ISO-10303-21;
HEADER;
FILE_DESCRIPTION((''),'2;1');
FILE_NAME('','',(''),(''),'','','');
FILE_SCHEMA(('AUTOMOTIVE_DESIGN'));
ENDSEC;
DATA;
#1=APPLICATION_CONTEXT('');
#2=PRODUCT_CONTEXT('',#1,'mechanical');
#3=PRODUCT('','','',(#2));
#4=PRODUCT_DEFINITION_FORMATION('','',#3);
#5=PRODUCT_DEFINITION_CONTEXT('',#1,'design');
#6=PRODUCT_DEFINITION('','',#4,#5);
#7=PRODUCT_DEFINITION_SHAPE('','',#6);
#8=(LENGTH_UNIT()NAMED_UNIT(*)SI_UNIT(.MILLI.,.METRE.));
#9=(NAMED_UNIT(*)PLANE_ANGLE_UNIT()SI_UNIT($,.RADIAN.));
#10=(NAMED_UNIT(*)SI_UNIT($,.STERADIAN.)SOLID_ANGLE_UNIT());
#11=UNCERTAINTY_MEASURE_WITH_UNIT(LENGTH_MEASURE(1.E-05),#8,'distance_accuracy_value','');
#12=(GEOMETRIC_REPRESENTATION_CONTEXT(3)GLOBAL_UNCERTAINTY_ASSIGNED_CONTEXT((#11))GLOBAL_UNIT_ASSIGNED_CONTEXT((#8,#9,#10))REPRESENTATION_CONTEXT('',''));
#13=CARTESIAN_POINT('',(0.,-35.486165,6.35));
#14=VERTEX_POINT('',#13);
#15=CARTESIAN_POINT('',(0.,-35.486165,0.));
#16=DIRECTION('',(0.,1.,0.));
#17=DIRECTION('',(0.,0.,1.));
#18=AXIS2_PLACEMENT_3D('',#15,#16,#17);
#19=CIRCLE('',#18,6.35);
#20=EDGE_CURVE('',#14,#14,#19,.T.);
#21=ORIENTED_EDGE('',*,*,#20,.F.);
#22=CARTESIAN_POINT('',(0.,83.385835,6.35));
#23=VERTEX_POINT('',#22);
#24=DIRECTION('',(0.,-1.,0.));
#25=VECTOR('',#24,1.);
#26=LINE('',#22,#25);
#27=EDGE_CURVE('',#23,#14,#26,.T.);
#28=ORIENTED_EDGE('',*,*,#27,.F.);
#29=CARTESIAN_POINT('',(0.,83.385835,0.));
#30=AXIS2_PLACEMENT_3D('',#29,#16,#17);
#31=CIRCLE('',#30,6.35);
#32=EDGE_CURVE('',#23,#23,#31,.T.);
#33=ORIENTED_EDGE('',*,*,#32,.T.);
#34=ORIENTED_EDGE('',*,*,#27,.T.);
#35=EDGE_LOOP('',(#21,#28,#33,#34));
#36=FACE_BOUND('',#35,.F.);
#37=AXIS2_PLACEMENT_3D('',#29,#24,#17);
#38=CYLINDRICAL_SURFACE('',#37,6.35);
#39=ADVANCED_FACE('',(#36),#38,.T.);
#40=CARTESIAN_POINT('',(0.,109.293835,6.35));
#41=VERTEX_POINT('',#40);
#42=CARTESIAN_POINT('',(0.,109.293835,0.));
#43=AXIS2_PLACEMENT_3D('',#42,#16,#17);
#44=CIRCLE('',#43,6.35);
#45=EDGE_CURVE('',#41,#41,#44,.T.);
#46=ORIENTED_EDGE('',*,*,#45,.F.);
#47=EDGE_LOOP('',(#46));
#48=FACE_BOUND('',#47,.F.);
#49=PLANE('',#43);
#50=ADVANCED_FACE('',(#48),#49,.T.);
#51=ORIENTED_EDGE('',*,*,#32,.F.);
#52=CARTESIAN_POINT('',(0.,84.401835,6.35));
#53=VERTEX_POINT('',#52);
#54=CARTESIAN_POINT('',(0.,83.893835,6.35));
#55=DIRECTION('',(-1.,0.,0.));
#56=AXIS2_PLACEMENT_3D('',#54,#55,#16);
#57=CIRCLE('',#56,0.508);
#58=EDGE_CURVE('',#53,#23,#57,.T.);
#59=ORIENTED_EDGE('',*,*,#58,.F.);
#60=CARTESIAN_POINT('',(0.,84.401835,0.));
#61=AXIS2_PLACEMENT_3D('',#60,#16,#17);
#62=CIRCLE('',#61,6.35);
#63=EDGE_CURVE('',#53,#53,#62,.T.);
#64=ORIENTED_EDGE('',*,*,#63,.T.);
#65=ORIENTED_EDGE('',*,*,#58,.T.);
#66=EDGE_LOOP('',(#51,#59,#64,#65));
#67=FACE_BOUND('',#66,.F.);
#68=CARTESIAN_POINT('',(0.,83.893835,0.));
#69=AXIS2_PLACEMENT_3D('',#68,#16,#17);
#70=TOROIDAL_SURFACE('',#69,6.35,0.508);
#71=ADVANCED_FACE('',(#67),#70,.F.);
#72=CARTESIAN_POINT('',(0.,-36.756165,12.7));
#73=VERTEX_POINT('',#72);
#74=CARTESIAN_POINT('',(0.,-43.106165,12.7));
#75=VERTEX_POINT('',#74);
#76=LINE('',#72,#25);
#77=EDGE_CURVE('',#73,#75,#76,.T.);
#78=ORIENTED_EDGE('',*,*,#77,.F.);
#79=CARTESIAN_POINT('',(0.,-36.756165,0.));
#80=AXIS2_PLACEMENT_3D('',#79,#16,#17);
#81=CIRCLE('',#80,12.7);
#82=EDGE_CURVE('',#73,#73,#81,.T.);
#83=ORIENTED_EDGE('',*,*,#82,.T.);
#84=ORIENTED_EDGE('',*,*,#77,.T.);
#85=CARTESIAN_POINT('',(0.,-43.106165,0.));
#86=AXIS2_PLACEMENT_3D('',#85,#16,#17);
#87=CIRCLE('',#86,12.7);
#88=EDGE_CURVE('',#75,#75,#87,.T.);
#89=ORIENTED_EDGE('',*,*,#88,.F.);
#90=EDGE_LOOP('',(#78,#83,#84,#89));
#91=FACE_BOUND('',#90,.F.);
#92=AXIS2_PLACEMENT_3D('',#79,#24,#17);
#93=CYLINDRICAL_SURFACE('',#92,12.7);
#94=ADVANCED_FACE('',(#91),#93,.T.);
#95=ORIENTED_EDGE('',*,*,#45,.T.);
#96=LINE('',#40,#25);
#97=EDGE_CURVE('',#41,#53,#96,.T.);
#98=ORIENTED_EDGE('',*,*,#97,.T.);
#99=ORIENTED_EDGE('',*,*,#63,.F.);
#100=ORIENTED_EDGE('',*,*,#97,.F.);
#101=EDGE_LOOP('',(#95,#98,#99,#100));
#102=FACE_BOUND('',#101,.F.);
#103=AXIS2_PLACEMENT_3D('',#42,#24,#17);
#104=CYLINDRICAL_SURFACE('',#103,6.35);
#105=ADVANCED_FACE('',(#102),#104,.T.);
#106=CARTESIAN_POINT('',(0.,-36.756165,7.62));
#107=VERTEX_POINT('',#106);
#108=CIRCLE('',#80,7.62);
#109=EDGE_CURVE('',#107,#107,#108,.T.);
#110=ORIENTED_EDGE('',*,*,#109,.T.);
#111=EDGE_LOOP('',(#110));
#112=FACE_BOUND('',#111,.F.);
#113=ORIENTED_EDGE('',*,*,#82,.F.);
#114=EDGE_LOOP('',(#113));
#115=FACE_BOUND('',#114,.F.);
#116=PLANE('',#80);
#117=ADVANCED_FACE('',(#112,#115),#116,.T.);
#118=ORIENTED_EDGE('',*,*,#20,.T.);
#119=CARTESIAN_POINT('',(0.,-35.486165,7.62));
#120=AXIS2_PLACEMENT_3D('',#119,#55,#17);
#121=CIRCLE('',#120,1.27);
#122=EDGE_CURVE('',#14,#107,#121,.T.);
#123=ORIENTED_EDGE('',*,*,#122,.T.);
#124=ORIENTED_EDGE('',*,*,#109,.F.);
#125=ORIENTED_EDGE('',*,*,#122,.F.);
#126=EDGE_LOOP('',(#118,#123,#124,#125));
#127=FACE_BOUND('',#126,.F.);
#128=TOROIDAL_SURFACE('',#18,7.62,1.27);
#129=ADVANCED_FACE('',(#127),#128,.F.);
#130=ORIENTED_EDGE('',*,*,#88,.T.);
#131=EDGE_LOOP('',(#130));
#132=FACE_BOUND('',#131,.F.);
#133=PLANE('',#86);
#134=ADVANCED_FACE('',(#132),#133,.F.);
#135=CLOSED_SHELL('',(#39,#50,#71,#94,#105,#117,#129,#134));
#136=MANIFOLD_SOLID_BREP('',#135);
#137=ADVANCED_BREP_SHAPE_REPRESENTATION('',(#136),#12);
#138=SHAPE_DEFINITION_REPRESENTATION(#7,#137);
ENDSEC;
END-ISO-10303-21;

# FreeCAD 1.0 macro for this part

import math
import FreeCAD as App
import Part
import Sketcher
from FreeCAD import Vector
Q = App.Units.Quantity


def edges_at(feature, points):
    """Names of the edges that pass closest to the given points."""
    edges = feature.Shape.Edges
    near = lambda p: min(range(len(edges)), key=lambda i: edges[i].distToShape(Part.Vertex(*p))[0])
    return sorted({f"Edge{near(p) + 1}" for p in points})

doc = App.newDocument("Part")
body = doc.addObject("PartDesign::Body", "Body")

sketch1 = body.newObject("Sketcher::SketchObject", "Sketch")
sketch1.AttachmentSupport = (doc.getObject("YZ_Plane"), [""])
sketch1.MapMode = "FlatFace"
sketch1.addGeometry([
    Part.LineSegment(Vector(-43.1, 0, 0), Vector(109.3, 0, 0)),
    Part.LineSegment(Vector(109.3, 0, 0), Vector(109.3, 6.3, 0)),
    Part.LineSegment(Vector(109.3, 6.3, 0), Vector(84.4, 6.3, 0)),
    Part.ArcOfCircle(Part.Circle(Vector(83.9, 6.3, 0), Vector(0, 0, 1), 0.5), math.radians(180), math.radians(360)),
    Part.LineSegment(Vector(83.4, 6.3, 0), Vector(-36.8, 6.3, 0)),
    Part.LineSegment(Vector(-36.8, 6.3, 0), Vector(-36.8, 12.7, 0)),
    Part.LineSegment(Vector(-36.8, 12.7, 0), Vector(-43.1, 12.7, 0)),
    Part.LineSegment(Vector(-43.1, 12.7, 0), Vector(-43.1, 0, 0)),
], False)
sketch1.addConstraint([
    Sketcher.Constraint("Coincident", 0, 2, 1, 1),
    Sketcher.Constraint("Coincident", 1, 2, 2, 1),
    Sketcher.Constraint("Coincident", 2, 2, 3, 2),
    Sketcher.Constraint("Coincident", 3, 1, 4, 1),
    Sketcher.Constraint("Coincident", 4, 2, 5, 1),
    Sketcher.Constraint("Coincident", 5, 2, 6, 1),
    Sketcher.Constraint("Coincident", 6, 2, 7, 1),
    Sketcher.Constraint("Coincident", 7, 2, 0, 1),
    Sketcher.Constraint("Horizontal", 0),
    Sketcher.Constraint("Vertical", 1),
    Sketcher.Constraint("Horizontal", 2),
    Sketcher.Constraint("Horizontal", 4),
    Sketcher.Constraint("Vertical", 5),
    Sketcher.Constraint("Horizontal", 6),
    Sketcher.Constraint("Vertical", 7),
    Sketcher.Constraint("PointOnObject", 0, 2, -1),
    Sketcher.Constraint("Horizontal", 3, 3, 1, 2),
    Sketcher.Constraint("Horizontal", 2, 2, 3, 1),
    Sketcher.Constraint("Equal", 6, 1),
    Sketcher.Constraint("Equal", 1, 5),
    Sketcher.Constraint("DistanceX", 0, 1, 0, 2, Q("6 in")),
    Sketcher.Constraint("Radius", 3, Q("0.02 in")),
    Sketcher.Constraint("DistanceY", 7, 2, 7, 1, Q("0.5 in")),
    Sketcher.Constraint("DistanceX", 3, 3, 0, 2, Q("1 in")),
    Sketcher.Constraint("DistanceX", -1, 1, 3, 3, 83.893835),
])
revolution = body.newObject("PartDesign::Revolution", "Revolution")
revolution.Profile = sketch1
revolution.ReferenceAxis = (sketch1, ["H_Axis"])
revolution.Angle = 360
doc.recompute()

fillet = body.newObject("PartDesign::Fillet", "Fillet")
fillet.Base = (revolution, edges_at(revolution, [(0, -36.756, -6.35)]))
fillet.Radius = Q("0.05 in")

doc.recompute()
